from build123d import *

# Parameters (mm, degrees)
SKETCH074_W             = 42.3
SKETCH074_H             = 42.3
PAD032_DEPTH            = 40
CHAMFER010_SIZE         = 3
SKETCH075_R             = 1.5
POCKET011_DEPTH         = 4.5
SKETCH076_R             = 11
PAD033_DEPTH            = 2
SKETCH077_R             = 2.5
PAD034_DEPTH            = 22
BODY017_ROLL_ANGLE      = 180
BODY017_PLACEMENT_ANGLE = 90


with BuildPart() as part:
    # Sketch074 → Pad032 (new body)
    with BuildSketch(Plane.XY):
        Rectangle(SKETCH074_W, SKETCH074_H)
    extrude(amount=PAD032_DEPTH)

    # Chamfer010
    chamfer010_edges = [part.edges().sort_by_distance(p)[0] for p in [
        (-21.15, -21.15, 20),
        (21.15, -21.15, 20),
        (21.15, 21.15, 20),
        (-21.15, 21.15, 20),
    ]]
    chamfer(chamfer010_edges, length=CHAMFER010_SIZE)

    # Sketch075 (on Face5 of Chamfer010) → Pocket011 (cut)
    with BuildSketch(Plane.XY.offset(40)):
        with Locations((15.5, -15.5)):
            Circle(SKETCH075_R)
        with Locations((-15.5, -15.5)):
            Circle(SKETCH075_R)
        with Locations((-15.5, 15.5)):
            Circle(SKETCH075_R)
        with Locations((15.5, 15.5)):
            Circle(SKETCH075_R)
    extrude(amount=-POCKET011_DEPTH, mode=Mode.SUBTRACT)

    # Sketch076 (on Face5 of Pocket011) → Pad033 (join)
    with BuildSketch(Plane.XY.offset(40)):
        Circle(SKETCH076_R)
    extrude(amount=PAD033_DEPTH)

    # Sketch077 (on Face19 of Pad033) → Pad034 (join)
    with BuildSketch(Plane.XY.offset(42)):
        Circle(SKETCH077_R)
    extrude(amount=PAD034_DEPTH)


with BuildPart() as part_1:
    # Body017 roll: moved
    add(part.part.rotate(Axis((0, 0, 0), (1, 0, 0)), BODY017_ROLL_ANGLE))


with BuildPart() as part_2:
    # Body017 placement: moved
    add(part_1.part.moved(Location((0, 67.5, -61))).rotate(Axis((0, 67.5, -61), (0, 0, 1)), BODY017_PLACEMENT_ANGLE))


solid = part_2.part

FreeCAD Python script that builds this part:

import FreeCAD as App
import Part
import Sketcher
from FreeCAD import Vector
Q = App.Units.Quantity


def edges_at(feature, points):
    """Names of the edges that pass closest to the given points."""
    edges = feature.Shape.Edges
    near = lambda p: min(range(len(edges)), key=lambda i: edges[i].distToShape(Part.Vertex(*p))[0])
    return sorted({f"Edge{near(p) + 1}" for p in points})

doc = App.newDocument("Part")
body = doc.addObject("PartDesign::Body", "Body")

sketch1 = body.newObject("Sketcher::SketchObject", "Sketch")
sketch1.AttachmentSupport = (doc.getObject("XY_Plane"), [""])
sketch1.MapMode = "FlatFace"
sketch1.addGeometry(Part.LineSegment(Vector(-21.15, 21.15, 0), Vector(-21.15, -21.15, 0)), False)
sketch1.addGeometry(Part.LineSegment(Vector(-21.15, -21.15, 0), Vector(21.15, -21.15, 0)), False)
sketch1.addGeometry(Part.LineSegment(Vector(21.15, -21.15, 0), Vector(21.15, 21.15, 0)), False)
sketch1.addGeometry(Part.LineSegment(Vector(21.15, 21.15, 0), Vector(-21.15, 21.15, 0)), False)
sketch1.addConstraint(Sketcher.Constraint("Coincident", 0, 2, 1, 1))
sketch1.addConstraint(Sketcher.Constraint("Coincident", 1, 2, 2, 1))
sketch1.addConstraint(Sketcher.Constraint("Coincident", 2, 2, 3, 1))
sketch1.addConstraint(Sketcher.Constraint("Coincident", 3, 2, 0, 1))
sketch1.addConstraint(Sketcher.Constraint("Vertical", 0))
sketch1.addConstraint(Sketcher.Constraint("Horizontal", 1))
sketch1.addConstraint(Sketcher.Constraint("Vertical", 2))
sketch1.addConstraint(Sketcher.Constraint("Horizontal", 3))
sketch1.addConstraint(Sketcher.Constraint("Symmetric", 0, 2, 2, 2, -1, 1))
sketch1.addConstraint(Sketcher.Constraint("Equal", 3, 0))
sketch1.addConstraint(Sketcher.Constraint("DistanceX", 1, 1, 1, 2, Q("42.3 mm")))
pad1 = body.newObject("PartDesign::Pad", "Pad")
pad1.Profile = sketch1
pad1.Length = 40
doc.recompute()

chamfer = body.newObject("PartDesign::Chamfer", "Chamfer")
chamfer.Base = (pad1, edges_at(pad1, [
    (-21.15, -21.15, 20),
    (21.15, -21.15, 20),
    (21.15, 21.15, 20),
    (-21.15, 21.15, 20),
]))
chamfer.Size = 3

sketch2 = body.newObject("Sketcher::SketchObject", "Sketch001")
sketch2.AttachmentSupport = (doc.getObject("XY_Plane"), [""])
sketch2.MapMode = "FlatFace"
sketch2.AttachmentOffset = App.Placement(Vector(0, 0, 40), App.Rotation())
sketch2.addGeometry(Part.Circle(Vector(15.5, -15.5, 0), Vector(0, 0, 1), 1.5), False)
sketch2.addGeometry(Part.Circle(Vector(-15.5, -15.5, 0), Vector(0, 0, 1), 1.5), False)
sketch2.addGeometry(Part.Circle(Vector(-15.5, 15.5, 0), Vector(0, 0, 1), 1.5), False)
sketch2.addGeometry(Part.Circle(Vector(15.5, 15.5, 0), Vector(0, 0, 1), 1.5), False)
sketch2.addConstraint(Sketcher.Constraint("Equal", 0, 1))
sketch2.addConstraint(Sketcher.Constraint("Equal", 1, 2))
sketch2.addConstraint(Sketcher.Constraint("Equal", 2, 3))
sketch2.addConstraint(Sketcher.Constraint("Symmetric", 0, 3, 2, 3, -1, 1))
sketch2.addConstraint(Sketcher.Constraint("Symmetric", 1, 3, 3, 3, -1, 1))
sketch2.addConstraint(Sketcher.Constraint("Symmetric", 0, 3, 1, 3, -2))
sketch2.addConstraint(Sketcher.Constraint("Diameter", 0, Q("3 mm")))
sketch2.addConstraint(Sketcher.Constraint("DistanceX", 1, 3, 0, 3, Q("31 mm")))
sketch2.addConstraint(Sketcher.Constraint("DistanceY", 1, 3, 2, 3, Q("31 mm")))
pocket1 = body.newObject("PartDesign::Pocket", "Pocket")
pocket1.Profile = sketch2
pocket1.Length = 4.5

sketch3 = body.newObject("Sketcher::SketchObject", "Sketch002")
sketch3.AttachmentSupport = (doc.getObject("XY_Plane"), [""])
sketch3.MapMode = "FlatFace"
sketch3.AttachmentOffset = App.Placement(Vector(0, 0, 40), App.Rotation())
sketch3.addGeometry(Part.Circle(Vector(0, 0, 0), Vector(0, 0, 1), 11), False)
sketch3.addConstraint(Sketcher.Constraint("Coincident", 0, 3, -1, 1))
sketch3.addConstraint(Sketcher.Constraint("Diameter", 0, Q("22 mm")))
pad2 = body.newObject("PartDesign::Pad", "Pad001")
pad2.Profile = sketch3
pad2.Length = 2

sketch4 = body.newObject("Sketcher::SketchObject", "Sketch003")
sketch4.AttachmentSupport = (doc.getObject("XY_Plane"), [""])
sketch4.MapMode = "FlatFace"
sketch4.AttachmentOffset = App.Placement(Vector(0, 0, 42), App.Rotation())
sketch4.addGeometry(Part.Circle(Vector(0, 0, 0), Vector(0, 0, 1), 2.5), False)
sketch4.addConstraint(Sketcher.Constraint("Coincident", 0, 3, -1, 1))
sketch4.addConstraint(Sketcher.Constraint("Diameter", 0, Q("5 mm")))
pad3 = body.newObject("PartDesign::Pad", "Pad002")
pad3.Profile = sketch4
pad3.Length = 22
body2 = doc.addObject("PartDesign::Body", "Body001")
doc.recompute()

body.Placement = App.Placement(Vector(0, 0, 0), App.Rotation(Vector(1, 0, 0), 180))
boolean = body2.newObject("PartDesign::Boolean", "Boolean")
boolean.Type = "Fuse"
boolean.addObjects([body])
body3 = doc.addObject("PartDesign::Body", "Body002")
doc.recompute()

body2.Placement = App.Placement(Vector(0, 67.5, -61), App.Rotation(Vector(0, 0, 1), 90))
boolean2 = body3.newObject("PartDesign::Boolean", "Boolean001")
boolean2.Type = "Fuse"
boolean2.addObjects([body2])

doc.recompute()
